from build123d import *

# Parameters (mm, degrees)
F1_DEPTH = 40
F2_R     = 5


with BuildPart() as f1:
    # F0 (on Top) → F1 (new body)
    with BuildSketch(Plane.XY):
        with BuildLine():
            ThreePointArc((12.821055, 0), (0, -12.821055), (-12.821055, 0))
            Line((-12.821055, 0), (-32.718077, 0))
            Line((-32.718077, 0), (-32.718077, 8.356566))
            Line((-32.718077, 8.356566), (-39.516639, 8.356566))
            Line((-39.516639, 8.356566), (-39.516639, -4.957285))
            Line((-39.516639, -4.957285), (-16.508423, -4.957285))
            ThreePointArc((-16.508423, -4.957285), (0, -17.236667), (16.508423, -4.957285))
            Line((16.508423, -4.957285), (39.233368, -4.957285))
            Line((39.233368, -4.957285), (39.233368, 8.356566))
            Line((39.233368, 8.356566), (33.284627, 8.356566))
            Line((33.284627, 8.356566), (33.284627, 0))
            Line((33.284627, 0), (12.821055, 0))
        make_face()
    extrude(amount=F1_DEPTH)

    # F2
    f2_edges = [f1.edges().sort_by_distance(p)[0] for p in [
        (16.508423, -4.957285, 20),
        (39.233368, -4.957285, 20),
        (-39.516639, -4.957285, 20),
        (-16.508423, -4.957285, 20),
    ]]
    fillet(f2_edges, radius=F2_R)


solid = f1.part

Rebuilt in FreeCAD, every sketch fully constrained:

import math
import FreeCAD as App
import Part
import Sketcher
from FreeCAD import Vector


def edges_at(feature, points):
    """Names of the edges that pass closest to the given points."""
    edges = feature.Shape.Edges
    near = lambda p: min(range(len(edges)), key=lambda i: edges[i].distToShape(Part.Vertex(*p))[0])
    return sorted({f"Edge{near(p) + 1}" for p in points})

doc = App.newDocument("Part")
params = doc.addObject("Spreadsheet::Sheet", "Params")
for row, (alias, value) in enumerate([
    ("pad1_length", "40 mm"),
    ("fillet_radius", "5 mm"),
], start=1):
    params.set(f"A{row}", alias)
    params.set(f"B{row}", "=" + value)
    params.setAlias(f"B{row}", alias)

body = doc.addObject("PartDesign::Body", "Body")

# Sketch on XY plane
sketch1 = body.newObject("Sketcher::SketchObject", "Sketch")
sketch1.AttachmentSupport = (doc.getObject("XY_Plane"), [""])
sketch1.MapMode = "FlatFace"
sketch1.addGeometry(Part.ArcOfCircle(Part.Circle(Vector(0, 0, 0), Vector(0, 0, 1), 12.821055), math.radians(180), math.radians(360)), False)
sketch1.addGeometry(Part.LineSegment(Vector(-12.821055, 0, 0), Vector(-32.718077, 0, 0)), False)
sketch1.addGeometry(Part.LineSegment(Vector(-32.718077, 0, 0), Vector(-32.718077, 8.356566, 0)), False)
sketch1.addGeometry(Part.LineSegment(Vector(-32.718077, 8.356566, 0), Vector(-39.516639, 8.356566, 0)), False)
sketch1.addGeometry(Part.LineSegment(Vector(-39.516639, 8.356566, 0), Vector(-39.516639, -4.957285, 0)), False)
sketch1.addGeometry(Part.LineSegment(Vector(-39.516639, -4.957285, 0), Vector(-16.508423, -4.957285, 0)), False)
sketch1.addGeometry(Part.ArcOfCircle(Part.Circle(Vector(0, 0.000001, 0), Vector(0, 0, 1), 17.236668), math.radians(-163.285605), math.radians(-16.714395)), False)
sketch1.addGeometry(Part.LineSegment(Vector(16.508423, -4.957285, 0), Vector(39.233368, -4.957285, 0)), False)
sketch1.addGeometry(Part.LineSegment(Vector(39.233368, -4.957285, 0), Vector(39.233368, 8.356566, 0)), False)
sketch1.addGeometry(Part.LineSegment(Vector(39.233368, 8.356566, 0), Vector(33.284627, 8.356566, 0)), False)
sketch1.addGeometry(Part.LineSegment(Vector(33.284627, 8.356566, 0), Vector(33.284627, 0, 0)), False)
sketch1.addGeometry(Part.LineSegment(Vector(33.284627, 0, 0), Vector(12.821055, 0, 0)), False)
sketch1.addConstraint(Sketcher.Constraint("Coincident", 0, 1, 1, 1))
sketch1.addConstraint(Sketcher.Constraint("Coincident", 1, 2, 2, 1))
sketch1.addConstraint(Sketcher.Constraint("Coincident", 2, 2, 3, 1))
sketch1.addConstraint(Sketcher.Constraint("Coincident", 3, 2, 4, 1))
sketch1.addConstraint(Sketcher.Constraint("Coincident", 4, 2, 5, 1))
sketch1.addConstraint(Sketcher.Constraint("Coincident", 5, 2, 6, 1))
sketch1.addConstraint(Sketcher.Constraint("Coincident", 6, 2, 7, 1))
sketch1.addConstraint(Sketcher.Constraint("Coincident", 7, 2, 8, 1))
sketch1.addConstraint(Sketcher.Constraint("Coincident", 8, 2, 9, 1))
sketch1.addConstraint(Sketcher.Constraint("Coincident", 9, 2, 10, 1))
sketch1.addConstraint(Sketcher.Constraint("Coincident", 10, 2, 11, 1))
sketch1.addConstraint(Sketcher.Constraint("Coincident", 11, 2, 0, 2))
sketch1.addConstraint(Sketcher.Constraint("Horizontal", 1))
sketch1.addConstraint(Sketcher.Constraint("Vertical", 2))
sketch1.addConstraint(Sketcher.Constraint("Horizontal", 3))
sketch1.addConstraint(Sketcher.Constraint("Vertical", 4))
sketch1.addConstraint(Sketcher.Constraint("Horizontal", 5))
sketch1.addConstraint(Sketcher.Constraint("Horizontal", 7))
sketch1.addConstraint(Sketcher.Constraint("Vertical", 8))
sketch1.addConstraint(Sketcher.Constraint("Horizontal", 9))
sketch1.addConstraint(Sketcher.Constraint("Vertical", 10))
sketch1.addConstraint(Sketcher.Constraint("Horizontal", 11))
sketch1.addConstraint(Sketcher.Constraint("Coincident", 0, 3, -1, 1))
sketch1.addConstraint(Sketcher.Constraint("Coincident", 6, 3, -1, 1))
sketch1.addConstraint(Sketcher.Constraint("PointOnObject", 0, 1, -1))
sketch1.addConstraint(Sketcher.Constraint("PointOnObject", 10, 2, -1))
sketch1.addConstraint(Sketcher.Constraint("Horizontal", 5, 2, 6, 2))
sketch1.addConstraint(Sketcher.Constraint("Horizontal", 3, 2, 8, 2))
sketch1.addConstraint(Sketcher.Constraint("Radius", 0, 12.821055))
sketch1.addConstraint(Sketcher.Constraint("Radius", 6, 17.236668))
sketch1.addConstraint(Sketcher.Constraint("DistanceX", 1, 2, 1, 1, 19.897022))
sketch1.addConstraint(Sketcher.Constraint("DistanceX", 3, 2, 3, 1, 6.798562))
sketch1.addConstraint(Sketcher.Constraint("DistanceX", 9, 2, 9, 1, 5.948741))
sketch1.addConstraint(Sketcher.Constraint("DistanceX", 11, 2, 11, 1, 20.463572))
sketch1.addConstraint(Sketcher.Constraint("DistanceY", 4, 2, 4, 1, 13.313851))
sketch1.addConstraint(Sketcher.Constraint("DistanceX", 1, 2, 6, 2, 49.2265))
pad1 = body.newObject("PartDesign::Pad", "Pad")
pad1.Profile = sketch1
pad1.setExpression("Length", "Params.pad1_length")
doc.recompute()

fillet = body.newObject("PartDesign::Fillet", "Fillet")
fillet.Base = (pad1, edges_at(pad1, [
    (16.508, -4.957, 20),
    (39.233, -4.957, 20),
    (-39.517, -4.957, 20),
    (-16.508, -4.957, 20),
]))
fillet.setExpression("Radius", "Params.fillet_radius")

doc.recompute()
